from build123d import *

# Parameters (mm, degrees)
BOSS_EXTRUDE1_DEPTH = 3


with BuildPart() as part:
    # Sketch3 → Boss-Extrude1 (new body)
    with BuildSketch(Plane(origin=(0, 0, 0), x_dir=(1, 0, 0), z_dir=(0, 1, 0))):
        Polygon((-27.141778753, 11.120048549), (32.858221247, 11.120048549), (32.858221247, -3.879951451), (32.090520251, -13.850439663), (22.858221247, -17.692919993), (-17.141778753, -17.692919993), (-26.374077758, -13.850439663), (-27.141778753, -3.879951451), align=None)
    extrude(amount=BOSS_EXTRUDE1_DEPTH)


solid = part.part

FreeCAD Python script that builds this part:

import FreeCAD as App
import Part
import Sketcher
from FreeCAD import Vector


def add_polygon(sketch, points):
    """Adds a closed chain of lines whose ends are joined by coincident constraints."""
    first, n = sketch.GeometryCount, len(points)
    for a, b in zip(points, points[1:] + points[:1]):
        sketch.addGeometry(Part.LineSegment(App.Vector(*a, 0), App.Vector(*b, 0)), False)
    for i in range(n):
        sketch.addConstraint(Sketcher.Constraint("Coincident", first + i, 2, first + (i + 1) % n, 1))

doc = App.newDocument("Part")
body = doc.addObject("PartDesign::Body", "Body")

sketch1 = body.newObject("Sketcher::SketchObject", "Sketch")
sketch1.AttachmentSupport = (doc.getObject("XZ_Plane"), [""])
sketch1.MapMode = "FlatFace"
add_polygon(sketch1, [(33, -11), (-27, -11), (-27, 4), (-26, 14), (-17, 18), (23, 18), (32, 14), (33, 4)])
sketch1.addConstraint(Sketcher.Constraint("Horizontal", 0))
sketch1.addConstraint(Sketcher.Constraint("Vertical", 1))
sketch1.addConstraint(Sketcher.Constraint("Horizontal", 4))
sketch1.addConstraint(Sketcher.Constraint("Vertical", 7))
sketch1.addConstraint(Sketcher.Constraint("Horizontal", 2, 2, 5, 2))
sketch1.addConstraint(Sketcher.Constraint("Horizontal", 1, 2, 6, 2))
sketch1.addConstraint(Sketcher.Constraint("Equal", 2, 3))
sketch1.addConstraint(Sketcher.Constraint("Equal", 3, 5))
sketch1.addConstraint(Sketcher.Constraint("Equal", 5, 6))
sketch1.addConstraint(Sketcher.Constraint("DistanceX", 0, 2, 0, 1, 60.0))
sketch1.addConstraint(Sketcher.Constraint("DistanceX", 4, 1, 4, 2, 40.0))
sketch1.addConstraint(Sketcher.Constraint("DistanceY", 1, 1, 1, 2, 15.0))
sketch1.addConstraint(Sketcher.Constraint("Distance", 2, 10.0))
sketch1.addConstraint(Sketcher.Constraint("DistanceX", 1, 2, 2, 2, 0.767701))
sketch1.addConstraint(Sketcher.Constraint("DistanceX", 0, 2, -1, 1, 27.141779))
sketch1.addConstraint(Sketcher.Constraint("DistanceY", 0, 2, -1, 1, 11.120049))
pad1 = body.newObject("PartDesign::Pad", "Pad")
pad1.Profile = sketch1
pad1.Length = 3
pad1.Reversed = True

doc.recompute()
